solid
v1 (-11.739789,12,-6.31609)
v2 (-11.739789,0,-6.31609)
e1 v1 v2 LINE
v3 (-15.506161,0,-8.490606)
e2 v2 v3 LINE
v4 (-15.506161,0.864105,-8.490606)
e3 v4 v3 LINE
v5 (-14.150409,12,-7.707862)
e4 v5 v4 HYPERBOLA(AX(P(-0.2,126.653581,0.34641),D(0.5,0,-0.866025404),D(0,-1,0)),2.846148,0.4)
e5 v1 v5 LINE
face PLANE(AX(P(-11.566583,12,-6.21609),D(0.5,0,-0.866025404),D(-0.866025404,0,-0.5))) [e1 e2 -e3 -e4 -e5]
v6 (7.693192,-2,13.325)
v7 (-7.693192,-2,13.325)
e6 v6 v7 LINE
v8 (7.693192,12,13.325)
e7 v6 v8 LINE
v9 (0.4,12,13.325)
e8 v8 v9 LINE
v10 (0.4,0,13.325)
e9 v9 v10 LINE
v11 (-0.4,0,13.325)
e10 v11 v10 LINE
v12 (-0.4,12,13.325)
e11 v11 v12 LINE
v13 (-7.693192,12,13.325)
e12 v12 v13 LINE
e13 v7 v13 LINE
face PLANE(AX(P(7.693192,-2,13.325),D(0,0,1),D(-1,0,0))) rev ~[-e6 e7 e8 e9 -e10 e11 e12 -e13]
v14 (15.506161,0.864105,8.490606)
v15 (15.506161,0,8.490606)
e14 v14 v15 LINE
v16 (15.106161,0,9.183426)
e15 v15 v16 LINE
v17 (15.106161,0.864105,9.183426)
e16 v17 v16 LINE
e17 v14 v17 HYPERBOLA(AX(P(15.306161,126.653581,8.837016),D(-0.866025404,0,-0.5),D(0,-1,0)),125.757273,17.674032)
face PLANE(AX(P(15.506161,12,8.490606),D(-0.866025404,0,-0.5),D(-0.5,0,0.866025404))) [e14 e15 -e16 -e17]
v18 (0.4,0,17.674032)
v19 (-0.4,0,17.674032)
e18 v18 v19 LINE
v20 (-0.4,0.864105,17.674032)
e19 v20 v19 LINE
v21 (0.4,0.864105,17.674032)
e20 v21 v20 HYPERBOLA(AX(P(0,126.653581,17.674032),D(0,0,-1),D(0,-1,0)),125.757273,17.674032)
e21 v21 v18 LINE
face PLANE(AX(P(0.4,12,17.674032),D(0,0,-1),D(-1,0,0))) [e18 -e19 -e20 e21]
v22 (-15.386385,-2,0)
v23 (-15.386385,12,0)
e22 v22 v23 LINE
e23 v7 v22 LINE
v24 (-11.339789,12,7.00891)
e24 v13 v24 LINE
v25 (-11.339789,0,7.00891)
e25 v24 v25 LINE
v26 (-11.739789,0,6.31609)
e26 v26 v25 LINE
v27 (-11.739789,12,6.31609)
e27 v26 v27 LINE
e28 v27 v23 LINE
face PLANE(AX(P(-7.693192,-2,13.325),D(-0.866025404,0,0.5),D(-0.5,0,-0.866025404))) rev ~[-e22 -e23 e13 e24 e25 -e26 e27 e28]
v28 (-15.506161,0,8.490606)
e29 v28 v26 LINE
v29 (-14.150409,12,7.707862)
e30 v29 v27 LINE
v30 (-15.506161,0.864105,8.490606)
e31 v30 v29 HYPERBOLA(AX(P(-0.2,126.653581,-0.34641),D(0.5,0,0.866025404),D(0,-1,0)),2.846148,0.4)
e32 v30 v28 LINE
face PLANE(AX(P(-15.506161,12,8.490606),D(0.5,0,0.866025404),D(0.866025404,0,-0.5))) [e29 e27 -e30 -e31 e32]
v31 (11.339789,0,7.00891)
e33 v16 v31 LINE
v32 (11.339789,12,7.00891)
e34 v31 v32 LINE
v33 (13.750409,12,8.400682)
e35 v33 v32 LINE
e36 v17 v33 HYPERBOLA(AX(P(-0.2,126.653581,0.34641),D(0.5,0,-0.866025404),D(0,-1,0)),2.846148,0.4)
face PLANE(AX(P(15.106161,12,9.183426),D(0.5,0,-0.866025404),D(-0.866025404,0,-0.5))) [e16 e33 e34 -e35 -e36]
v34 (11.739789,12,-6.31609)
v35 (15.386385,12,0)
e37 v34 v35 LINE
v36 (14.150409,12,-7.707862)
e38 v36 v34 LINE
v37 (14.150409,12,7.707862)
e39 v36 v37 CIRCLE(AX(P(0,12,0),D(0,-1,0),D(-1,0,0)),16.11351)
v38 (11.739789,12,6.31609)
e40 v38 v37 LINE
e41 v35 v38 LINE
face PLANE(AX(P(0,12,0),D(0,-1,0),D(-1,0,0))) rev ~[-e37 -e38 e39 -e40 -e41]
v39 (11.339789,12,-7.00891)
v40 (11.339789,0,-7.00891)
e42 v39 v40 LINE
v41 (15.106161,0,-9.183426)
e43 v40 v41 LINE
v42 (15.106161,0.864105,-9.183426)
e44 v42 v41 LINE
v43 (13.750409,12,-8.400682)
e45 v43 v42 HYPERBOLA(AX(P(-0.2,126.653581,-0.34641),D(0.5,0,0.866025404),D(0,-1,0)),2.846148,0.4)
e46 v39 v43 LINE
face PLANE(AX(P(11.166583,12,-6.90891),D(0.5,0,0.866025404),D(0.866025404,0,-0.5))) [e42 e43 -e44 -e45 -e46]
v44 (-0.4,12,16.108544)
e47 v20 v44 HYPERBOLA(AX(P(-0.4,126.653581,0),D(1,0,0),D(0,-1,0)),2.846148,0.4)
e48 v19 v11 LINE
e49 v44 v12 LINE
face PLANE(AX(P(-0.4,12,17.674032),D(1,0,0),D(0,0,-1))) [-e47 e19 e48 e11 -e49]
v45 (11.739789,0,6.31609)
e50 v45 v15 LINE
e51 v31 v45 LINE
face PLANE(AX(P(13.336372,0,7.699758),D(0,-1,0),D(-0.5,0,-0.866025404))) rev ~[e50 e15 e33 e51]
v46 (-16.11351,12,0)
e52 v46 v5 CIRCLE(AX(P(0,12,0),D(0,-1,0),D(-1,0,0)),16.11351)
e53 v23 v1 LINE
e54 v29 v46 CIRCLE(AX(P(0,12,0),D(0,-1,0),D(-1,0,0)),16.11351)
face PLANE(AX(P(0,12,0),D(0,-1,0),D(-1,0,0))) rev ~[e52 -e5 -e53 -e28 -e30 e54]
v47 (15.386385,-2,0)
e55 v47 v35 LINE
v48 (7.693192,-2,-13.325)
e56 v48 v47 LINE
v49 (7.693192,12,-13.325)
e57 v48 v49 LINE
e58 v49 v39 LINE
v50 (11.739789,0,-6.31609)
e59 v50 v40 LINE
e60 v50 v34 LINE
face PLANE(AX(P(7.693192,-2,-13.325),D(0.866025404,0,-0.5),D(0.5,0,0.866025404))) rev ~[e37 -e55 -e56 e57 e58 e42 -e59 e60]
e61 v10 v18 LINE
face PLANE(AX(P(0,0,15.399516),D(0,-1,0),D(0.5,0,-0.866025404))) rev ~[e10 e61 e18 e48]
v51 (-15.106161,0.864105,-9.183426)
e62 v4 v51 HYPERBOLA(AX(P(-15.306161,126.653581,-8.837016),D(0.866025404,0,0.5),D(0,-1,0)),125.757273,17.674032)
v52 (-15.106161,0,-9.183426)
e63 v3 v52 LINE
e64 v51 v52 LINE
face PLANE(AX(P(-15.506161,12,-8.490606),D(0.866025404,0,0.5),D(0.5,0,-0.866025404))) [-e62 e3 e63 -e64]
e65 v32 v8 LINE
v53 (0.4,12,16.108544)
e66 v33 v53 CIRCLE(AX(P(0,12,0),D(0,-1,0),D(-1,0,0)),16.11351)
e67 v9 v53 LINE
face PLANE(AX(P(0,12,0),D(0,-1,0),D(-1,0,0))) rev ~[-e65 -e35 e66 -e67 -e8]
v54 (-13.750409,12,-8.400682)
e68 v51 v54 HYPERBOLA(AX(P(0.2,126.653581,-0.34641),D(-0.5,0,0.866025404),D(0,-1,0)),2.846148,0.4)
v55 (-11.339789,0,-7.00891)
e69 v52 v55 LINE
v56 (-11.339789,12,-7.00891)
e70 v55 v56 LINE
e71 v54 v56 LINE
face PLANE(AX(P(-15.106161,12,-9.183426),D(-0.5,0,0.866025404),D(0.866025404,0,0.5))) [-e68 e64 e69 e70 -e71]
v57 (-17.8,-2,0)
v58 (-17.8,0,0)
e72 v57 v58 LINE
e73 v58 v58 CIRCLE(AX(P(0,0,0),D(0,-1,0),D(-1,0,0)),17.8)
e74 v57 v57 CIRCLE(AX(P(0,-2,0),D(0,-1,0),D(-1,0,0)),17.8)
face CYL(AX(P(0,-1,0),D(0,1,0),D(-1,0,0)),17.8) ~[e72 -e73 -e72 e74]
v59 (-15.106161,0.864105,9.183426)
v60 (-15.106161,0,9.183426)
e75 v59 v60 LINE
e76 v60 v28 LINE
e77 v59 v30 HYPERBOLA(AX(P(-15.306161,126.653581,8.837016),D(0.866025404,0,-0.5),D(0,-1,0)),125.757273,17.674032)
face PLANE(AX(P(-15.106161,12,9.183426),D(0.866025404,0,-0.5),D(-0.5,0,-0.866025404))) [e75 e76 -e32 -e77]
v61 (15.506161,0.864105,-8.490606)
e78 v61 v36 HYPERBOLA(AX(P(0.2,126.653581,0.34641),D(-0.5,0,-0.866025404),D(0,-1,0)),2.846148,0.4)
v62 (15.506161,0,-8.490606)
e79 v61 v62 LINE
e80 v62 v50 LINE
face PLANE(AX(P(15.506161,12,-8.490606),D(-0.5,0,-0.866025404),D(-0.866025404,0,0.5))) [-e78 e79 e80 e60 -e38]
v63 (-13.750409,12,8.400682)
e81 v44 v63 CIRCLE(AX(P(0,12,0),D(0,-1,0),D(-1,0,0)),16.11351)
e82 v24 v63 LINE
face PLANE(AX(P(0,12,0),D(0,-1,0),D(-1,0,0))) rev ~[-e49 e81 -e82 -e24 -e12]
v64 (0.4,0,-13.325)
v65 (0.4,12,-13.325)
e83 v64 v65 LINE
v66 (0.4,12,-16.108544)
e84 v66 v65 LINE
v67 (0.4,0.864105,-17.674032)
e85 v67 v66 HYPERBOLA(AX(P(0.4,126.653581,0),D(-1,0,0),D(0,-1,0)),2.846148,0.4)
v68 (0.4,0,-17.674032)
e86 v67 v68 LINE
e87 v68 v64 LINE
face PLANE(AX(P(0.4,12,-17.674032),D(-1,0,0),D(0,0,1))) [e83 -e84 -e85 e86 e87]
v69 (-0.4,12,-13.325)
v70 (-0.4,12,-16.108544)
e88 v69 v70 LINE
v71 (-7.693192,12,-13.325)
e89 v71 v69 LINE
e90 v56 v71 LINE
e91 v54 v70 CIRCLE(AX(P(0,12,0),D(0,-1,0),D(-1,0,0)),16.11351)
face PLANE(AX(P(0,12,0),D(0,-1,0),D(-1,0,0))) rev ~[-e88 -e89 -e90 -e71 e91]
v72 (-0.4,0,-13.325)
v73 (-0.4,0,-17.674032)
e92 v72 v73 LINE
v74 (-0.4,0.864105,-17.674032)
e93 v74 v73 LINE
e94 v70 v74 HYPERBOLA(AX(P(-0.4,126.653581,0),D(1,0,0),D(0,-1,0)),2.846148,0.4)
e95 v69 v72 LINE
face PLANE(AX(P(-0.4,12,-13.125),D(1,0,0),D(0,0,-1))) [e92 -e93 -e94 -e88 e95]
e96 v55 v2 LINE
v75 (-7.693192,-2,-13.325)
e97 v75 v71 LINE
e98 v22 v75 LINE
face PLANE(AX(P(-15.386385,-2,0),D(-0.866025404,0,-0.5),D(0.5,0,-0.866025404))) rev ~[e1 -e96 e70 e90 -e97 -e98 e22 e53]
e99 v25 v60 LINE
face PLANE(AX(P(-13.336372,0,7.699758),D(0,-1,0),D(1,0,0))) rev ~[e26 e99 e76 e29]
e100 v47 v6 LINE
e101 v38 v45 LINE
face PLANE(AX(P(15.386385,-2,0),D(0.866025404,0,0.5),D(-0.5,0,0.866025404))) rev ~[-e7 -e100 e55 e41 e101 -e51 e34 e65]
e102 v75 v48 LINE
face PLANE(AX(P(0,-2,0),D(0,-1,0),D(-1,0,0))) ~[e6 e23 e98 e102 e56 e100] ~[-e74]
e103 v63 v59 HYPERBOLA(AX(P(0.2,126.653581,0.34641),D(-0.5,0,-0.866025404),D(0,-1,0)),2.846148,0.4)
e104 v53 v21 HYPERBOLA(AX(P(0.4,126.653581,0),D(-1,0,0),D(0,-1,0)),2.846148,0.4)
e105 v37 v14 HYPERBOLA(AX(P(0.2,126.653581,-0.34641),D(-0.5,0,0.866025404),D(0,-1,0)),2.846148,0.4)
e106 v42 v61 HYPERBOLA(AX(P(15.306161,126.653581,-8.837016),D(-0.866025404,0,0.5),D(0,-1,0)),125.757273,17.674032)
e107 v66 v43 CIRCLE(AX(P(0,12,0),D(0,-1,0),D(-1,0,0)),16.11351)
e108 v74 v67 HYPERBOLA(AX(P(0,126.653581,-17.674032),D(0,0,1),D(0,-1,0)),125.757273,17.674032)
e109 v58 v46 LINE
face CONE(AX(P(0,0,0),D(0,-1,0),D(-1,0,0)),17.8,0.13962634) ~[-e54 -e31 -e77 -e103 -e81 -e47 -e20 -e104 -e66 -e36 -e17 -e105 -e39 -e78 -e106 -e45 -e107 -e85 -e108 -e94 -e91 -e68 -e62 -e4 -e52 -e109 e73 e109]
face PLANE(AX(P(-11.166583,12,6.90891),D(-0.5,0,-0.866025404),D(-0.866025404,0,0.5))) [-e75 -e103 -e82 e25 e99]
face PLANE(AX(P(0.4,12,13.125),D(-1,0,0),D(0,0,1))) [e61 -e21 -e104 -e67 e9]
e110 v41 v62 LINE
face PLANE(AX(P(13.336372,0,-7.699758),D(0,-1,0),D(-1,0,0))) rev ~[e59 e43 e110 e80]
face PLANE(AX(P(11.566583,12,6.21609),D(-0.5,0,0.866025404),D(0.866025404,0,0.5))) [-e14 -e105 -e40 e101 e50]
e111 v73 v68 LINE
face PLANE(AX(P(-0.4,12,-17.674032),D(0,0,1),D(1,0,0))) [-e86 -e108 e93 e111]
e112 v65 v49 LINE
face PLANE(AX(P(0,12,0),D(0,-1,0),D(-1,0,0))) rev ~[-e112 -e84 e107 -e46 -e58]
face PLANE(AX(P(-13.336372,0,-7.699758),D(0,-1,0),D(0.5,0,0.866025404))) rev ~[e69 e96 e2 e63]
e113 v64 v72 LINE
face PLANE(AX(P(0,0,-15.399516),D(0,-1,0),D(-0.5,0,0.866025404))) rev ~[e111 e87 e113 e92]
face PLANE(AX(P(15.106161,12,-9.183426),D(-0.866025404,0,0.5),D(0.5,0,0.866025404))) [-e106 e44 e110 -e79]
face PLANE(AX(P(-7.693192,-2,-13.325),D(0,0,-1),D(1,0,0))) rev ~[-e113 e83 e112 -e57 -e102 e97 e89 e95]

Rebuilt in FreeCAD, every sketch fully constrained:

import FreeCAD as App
import Part
import Sketcher
Q = App.Units.Quantity


def add_polygon(sketch, points):
    """Adds a closed chain of lines whose ends are joined by coincident constraints."""
    first, n = sketch.GeometryCount, len(points)
    for a, b in zip(points, points[1:] + points[:1]):
        sketch.addGeometry(Part.LineSegment(App.Vector(*a, 0), App.Vector(*b, 0)), False)
    for i in range(n):
        sketch.addConstraint(Sketcher.Constraint("Coincident", first + i, 2, first + (i + 1) % n, 1))

doc = App.newDocument("Part")
body = doc.addObject("PartDesign::Body", "Body")

sketch1 = body.newObject("Sketcher::SketchObject", "Sketch")
sketch1.AttachmentSupport = (doc.getObject("XY_Plane"), [""])
sketch1.MapMode = "FlatFace"
add_polygon(sketch1, [(16.1, 12), (0, 12), (0, -2), (17.8, -2), (17.8, 0)])
sketch1.addConstraint([
    Sketcher.Constraint("Horizontal", 0),
    Sketcher.Constraint("Vertical", 1),
    Sketcher.Constraint("Horizontal", 2),
    Sketcher.Constraint("Vertical", 3),
    Sketcher.Constraint("PointOnObject", 0, 2, -2),
    Sketcher.Constraint("PointOnObject", 3, 2, -1),
    Sketcher.Constraint("DistanceY", 1, 2, 1, 1, 14.0),
    Sketcher.Constraint("DistanceY", 3, 1, 3, 2, 2.0),
    Sketcher.Constraint("Angle", 4, Q("98 deg")),
    Sketcher.Constraint("DistanceX", 2, 1, 2, 2, 17.8),
])
revolution = body.newObject("PartDesign::Revolution", "Revolution")
revolution.Profile = sketch1
revolution.ReferenceAxis = (sketch1, ["V_Axis"])
revolution.Angle = 360

sketch2 = body.newObject("Sketcher::SketchObject", "Sketch001")
sketch2.AttachmentSupport = (doc.getObject("XZ_Plane"), [""])
sketch2.MapMode = "FlatFace"
sketch2.AttachmentOffset = App.Placement(App.Vector(0, 0, 2), App.Rotation())
add_polygon(sketch2, [(15, 0), (8, 13), (-8, 13), (-15, 0), (-8, -13), (8, -13)])
sketch2.addConstraint([
    Sketcher.Constraint("Horizontal", 1),
    Sketcher.Constraint("Horizontal", 4),
    Sketcher.Constraint("Symmetric", 0, 2, 3, 2, -1, 1),
    Sketcher.Constraint("Symmetric", 2, 2, 5, 2, -1, 1),
    Sketcher.Constraint("PointOnObject", 2, 2, -1),
    Sketcher.Constraint("Parallel", 2, 5),
    Sketcher.Constraint("Vertical", 1, 2, 3, 2),
    Sketcher.Constraint("Angle", 0, Q("120 deg")),
    Sketcher.Constraint("DistanceY", 3, 2, 1, 2, 26.65),
    Sketcher.Constraint("DistanceX", 1, 2, 1, 1, 15.386385),
])
pocket1 = body.newObject("PartDesign::Pocket", "Pocket")
pocket1.Profile = sketch2
pocket1.Type = "ThroughAll"

sketch3 = body.newObject("Sketcher::SketchObject", "Sketch002")
sketch3.AttachmentSupport = (doc.getObject("XZ_Plane"), [""])
sketch3.MapMode = "FlatFace"
sketch3.AttachmentOffset = App.Placement(App.Vector(0, 0, -12), App.Rotation())
add_polygon(sketch3, [(15.1, -9.2), (11.2, -6.9), (11.6, -6.2), (15.5, -8.5)])
sketch3.addConstraint([
    Sketcher.Constraint("Perpendicular", 0, 1),
    Sketcher.Constraint("Perpendicular", 1, 2),
    Sketcher.Constraint("Perpendicular", 2, 3),
    Sketcher.Constraint("Angle", 0, Q("150 deg")),
    Sketcher.Constraint("Distance", 1, 0.8),
    Sketcher.Constraint("DistanceY", 0, 2, -1, 1, 6.90891),
    Sketcher.Constraint("DistanceX", -1, 1, 2, 2, 15.506161),
    Sketcher.Constraint("Distance", 0, 4.549032),
])
pocket2 = body.newObject("PartDesign::Pocket", "Pocket001")
pocket2.Profile = sketch3
pocket2.Length = 12
pocket2.Reversed = True
doc.recompute()

polarpattern = body.newObject("PartDesign::PolarPattern", "PolarPattern")
polarpattern.Originals = [pocket2]
polarpattern.Axis = (doc.getObject("Y_Axis"), [""])
polarpattern.Angle = 360
polarpattern.Occurrences = 6
body.Tip = polarpattern

doc.recompute()
